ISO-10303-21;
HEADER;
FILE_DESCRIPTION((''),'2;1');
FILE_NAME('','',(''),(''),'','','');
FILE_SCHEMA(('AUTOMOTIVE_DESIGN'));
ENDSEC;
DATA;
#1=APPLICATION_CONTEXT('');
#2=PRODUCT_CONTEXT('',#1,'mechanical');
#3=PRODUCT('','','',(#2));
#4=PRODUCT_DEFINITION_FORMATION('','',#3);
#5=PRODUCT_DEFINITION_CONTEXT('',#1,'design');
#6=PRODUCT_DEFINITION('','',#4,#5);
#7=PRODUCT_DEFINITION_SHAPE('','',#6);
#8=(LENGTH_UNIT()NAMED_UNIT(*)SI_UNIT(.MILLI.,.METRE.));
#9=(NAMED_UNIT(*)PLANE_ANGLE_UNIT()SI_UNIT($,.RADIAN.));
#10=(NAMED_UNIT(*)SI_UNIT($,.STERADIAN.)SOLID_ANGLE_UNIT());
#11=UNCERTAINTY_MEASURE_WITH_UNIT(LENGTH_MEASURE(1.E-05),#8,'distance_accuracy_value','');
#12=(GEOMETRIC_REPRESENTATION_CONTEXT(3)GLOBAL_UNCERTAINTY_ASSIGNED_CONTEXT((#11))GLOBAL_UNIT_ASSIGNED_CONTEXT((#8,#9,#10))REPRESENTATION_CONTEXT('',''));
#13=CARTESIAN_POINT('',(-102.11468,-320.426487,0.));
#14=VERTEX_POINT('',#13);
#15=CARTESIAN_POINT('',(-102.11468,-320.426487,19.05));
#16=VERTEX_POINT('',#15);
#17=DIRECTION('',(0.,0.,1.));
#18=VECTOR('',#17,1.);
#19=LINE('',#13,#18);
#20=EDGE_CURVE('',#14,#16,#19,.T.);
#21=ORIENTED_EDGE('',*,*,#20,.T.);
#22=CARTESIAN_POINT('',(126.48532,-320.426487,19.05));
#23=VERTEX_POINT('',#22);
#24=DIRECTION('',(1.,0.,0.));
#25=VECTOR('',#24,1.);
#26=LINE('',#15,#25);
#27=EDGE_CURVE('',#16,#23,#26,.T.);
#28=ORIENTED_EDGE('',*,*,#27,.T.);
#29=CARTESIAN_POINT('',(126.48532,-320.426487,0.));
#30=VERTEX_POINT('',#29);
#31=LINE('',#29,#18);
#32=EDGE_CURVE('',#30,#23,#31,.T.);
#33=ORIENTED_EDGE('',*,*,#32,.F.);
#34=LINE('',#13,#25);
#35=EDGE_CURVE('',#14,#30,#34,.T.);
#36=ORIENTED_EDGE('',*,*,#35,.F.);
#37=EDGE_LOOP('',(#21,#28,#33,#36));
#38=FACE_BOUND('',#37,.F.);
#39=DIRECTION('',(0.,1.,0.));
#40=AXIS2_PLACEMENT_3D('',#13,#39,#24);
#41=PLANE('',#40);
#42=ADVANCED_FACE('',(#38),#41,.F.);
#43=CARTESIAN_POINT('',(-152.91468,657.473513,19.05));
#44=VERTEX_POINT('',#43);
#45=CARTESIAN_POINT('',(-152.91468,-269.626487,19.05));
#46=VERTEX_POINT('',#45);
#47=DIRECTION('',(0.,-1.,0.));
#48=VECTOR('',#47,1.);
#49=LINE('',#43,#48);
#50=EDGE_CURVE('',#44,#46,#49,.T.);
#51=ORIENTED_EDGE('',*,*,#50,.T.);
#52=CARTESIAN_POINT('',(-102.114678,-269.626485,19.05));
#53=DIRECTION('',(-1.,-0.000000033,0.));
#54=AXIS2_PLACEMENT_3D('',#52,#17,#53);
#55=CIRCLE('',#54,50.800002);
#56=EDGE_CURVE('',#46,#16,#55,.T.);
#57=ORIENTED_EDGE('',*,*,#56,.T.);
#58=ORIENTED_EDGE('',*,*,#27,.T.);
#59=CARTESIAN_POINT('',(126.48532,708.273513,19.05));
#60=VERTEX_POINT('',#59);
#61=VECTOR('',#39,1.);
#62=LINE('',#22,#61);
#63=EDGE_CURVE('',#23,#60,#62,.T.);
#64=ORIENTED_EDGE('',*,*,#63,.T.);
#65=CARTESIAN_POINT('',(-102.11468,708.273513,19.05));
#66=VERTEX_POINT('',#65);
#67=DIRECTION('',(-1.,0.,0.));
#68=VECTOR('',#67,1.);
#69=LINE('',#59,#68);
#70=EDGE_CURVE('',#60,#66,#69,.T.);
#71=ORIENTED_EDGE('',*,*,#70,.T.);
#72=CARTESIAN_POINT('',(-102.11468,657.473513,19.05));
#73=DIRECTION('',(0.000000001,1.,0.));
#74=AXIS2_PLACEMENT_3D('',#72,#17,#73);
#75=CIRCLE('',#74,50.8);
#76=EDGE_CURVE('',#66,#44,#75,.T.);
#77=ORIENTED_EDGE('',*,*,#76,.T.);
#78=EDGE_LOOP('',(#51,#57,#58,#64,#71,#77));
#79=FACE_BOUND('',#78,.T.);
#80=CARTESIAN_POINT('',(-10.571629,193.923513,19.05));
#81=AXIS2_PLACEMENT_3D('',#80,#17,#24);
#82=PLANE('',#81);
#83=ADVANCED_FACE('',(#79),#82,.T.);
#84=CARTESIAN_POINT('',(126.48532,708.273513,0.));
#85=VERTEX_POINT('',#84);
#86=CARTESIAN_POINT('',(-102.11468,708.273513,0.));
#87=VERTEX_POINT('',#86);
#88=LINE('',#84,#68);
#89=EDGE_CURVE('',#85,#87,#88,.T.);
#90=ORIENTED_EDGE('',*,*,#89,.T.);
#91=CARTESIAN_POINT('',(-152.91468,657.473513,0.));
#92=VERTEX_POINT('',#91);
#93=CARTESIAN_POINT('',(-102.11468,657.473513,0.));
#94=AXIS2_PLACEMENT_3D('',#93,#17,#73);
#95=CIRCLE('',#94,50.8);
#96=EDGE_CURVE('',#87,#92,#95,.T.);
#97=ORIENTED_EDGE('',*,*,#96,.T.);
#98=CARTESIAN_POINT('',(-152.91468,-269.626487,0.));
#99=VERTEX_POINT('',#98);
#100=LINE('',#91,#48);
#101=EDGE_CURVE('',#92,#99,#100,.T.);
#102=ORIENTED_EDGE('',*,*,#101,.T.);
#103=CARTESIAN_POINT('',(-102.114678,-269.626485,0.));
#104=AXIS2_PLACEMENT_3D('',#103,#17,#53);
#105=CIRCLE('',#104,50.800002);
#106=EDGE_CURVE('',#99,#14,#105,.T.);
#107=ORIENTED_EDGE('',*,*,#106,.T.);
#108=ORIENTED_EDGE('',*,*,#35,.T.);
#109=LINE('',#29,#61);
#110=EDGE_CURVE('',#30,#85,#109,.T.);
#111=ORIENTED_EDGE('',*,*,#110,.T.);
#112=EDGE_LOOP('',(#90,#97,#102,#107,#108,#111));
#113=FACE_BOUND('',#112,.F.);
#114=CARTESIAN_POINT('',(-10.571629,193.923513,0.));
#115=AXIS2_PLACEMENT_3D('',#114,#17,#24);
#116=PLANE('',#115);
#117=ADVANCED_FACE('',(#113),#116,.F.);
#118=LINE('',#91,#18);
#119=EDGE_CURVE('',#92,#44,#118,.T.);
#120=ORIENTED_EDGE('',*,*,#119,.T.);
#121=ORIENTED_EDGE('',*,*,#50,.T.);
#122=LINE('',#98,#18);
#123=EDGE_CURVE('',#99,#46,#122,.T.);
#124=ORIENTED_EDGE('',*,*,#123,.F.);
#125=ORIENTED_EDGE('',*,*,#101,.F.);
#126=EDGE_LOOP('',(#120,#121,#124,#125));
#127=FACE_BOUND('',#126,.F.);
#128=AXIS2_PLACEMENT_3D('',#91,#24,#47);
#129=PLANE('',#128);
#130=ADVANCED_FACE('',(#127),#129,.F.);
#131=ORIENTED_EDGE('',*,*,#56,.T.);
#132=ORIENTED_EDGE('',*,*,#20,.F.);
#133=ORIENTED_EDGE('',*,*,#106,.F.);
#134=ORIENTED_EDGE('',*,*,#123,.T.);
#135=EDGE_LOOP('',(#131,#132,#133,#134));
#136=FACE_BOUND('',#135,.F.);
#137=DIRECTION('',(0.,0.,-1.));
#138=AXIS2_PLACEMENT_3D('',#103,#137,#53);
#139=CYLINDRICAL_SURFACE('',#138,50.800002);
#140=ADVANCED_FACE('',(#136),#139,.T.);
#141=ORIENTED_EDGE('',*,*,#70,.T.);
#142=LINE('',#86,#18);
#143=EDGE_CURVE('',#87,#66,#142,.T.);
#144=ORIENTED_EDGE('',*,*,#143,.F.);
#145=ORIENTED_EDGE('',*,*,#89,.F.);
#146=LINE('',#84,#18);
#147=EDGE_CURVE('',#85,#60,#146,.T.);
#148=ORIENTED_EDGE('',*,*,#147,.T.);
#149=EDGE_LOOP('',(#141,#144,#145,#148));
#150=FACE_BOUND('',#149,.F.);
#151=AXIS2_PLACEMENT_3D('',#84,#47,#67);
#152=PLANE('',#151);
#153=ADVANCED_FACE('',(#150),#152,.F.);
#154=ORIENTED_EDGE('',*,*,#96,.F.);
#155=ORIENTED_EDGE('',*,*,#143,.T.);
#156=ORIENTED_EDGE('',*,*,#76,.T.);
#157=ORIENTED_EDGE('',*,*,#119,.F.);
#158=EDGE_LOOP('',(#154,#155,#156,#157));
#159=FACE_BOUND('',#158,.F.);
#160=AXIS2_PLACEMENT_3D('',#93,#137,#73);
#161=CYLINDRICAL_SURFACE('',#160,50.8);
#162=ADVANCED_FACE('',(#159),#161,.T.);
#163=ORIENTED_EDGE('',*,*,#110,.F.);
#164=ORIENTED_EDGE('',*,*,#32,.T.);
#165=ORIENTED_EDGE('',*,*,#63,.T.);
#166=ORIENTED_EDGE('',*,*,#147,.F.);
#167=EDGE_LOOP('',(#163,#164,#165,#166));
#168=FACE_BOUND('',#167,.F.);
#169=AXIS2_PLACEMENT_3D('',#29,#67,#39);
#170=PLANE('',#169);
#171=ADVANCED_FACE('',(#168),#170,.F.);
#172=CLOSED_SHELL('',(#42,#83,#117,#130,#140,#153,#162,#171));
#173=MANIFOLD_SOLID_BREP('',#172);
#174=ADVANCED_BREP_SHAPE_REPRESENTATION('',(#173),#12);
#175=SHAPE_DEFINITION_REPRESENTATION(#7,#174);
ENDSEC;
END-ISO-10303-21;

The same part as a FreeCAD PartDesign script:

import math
import FreeCAD as App
import Part
import Sketcher
from FreeCAD import Vector
Q = App.Units.Quantity

doc = App.newDocument("Part")
body = doc.addObject("PartDesign::Body", "Body")

# Sketch on XY plane
sketch1 = body.newObject("Sketcher::SketchObject", "Sketch")
sketch1.AttachmentSupport = (doc.getObject("XY_Plane"), [""])
sketch1.MapMode = "FlatFace"
sketch1.addGeometry([
    Part.LineSegment(Vector(126.48532, 708.273513, 0), Vector(-102.11468, 708.273513, 0)),  # 0
    Part.ArcOfCircle(Part.Circle(Vector(-102.11468, 657.473513, 0), Vector(0, 0, 1), 50.8), math.radians(90), math.radians(180)),  # 1
    Part.LineSegment(Vector(-152.91468, 657.473513, 0), Vector(-152.91468, -269.626487, 0)),  # 2
    Part.ArcOfCircle(Part.Circle(Vector(-102.114678, -269.626485, 0), Vector(0, 0, 1), 50.800002), math.radians(-179.999998), math.radians(-90.000002)),  # 3
    Part.LineSegment(Vector(-102.11468, -320.426487, 0), Vector(126.48532, -320.426487, 0)),  # 4
    Part.LineSegment(Vector(126.48532, -320.426487, 0), Vector(126.48532, 708.273513, 0)),  # 5
], False)
sketch1.addConstraint([
    Sketcher.Constraint("Tangent", 0, 2, 1, 1),
    Sketcher.Constraint("Tangent", 1, 2, 2, 1),
    Sketcher.Constraint("Tangent", 2, 2, 3, 1),
    Sketcher.Constraint("Tangent", 3, 2, 4, 1),
    Sketcher.Constraint("Coincident", 4, 2, 5, 1),
    Sketcher.Constraint("Coincident", 5, 2, 0, 1),
    Sketcher.Constraint("Horizontal", 0),
    Sketcher.Constraint("Vertical", 2),
    Sketcher.Constraint("Horizontal", 4),
    Sketcher.Constraint("Vertical", 5),
    Sketcher.Constraint("Equal", 1, 3),
    Sketcher.Constraint("Radius", 1, Q("2 in")),
    Sketcher.Constraint("DistanceX", 0, 2, 0, 1, Q("9 in")),
    Sketcher.Constraint("DistanceY", 2, 2, 2, 1, Q("36.5 in")),
    Sketcher.Constraint("DistanceX", 1, 3, -1, 1, Q("102.11468 mm")),
    Sketcher.Constraint("DistanceY", -1, 1, 1, 3, Q("657.473513 mm")),
])
pad1 = body.newObject("PartDesign::Pad", "Pad")
pad1.Profile = sketch1
pad1.Length = Q("0.75 in")

doc.recompute()
